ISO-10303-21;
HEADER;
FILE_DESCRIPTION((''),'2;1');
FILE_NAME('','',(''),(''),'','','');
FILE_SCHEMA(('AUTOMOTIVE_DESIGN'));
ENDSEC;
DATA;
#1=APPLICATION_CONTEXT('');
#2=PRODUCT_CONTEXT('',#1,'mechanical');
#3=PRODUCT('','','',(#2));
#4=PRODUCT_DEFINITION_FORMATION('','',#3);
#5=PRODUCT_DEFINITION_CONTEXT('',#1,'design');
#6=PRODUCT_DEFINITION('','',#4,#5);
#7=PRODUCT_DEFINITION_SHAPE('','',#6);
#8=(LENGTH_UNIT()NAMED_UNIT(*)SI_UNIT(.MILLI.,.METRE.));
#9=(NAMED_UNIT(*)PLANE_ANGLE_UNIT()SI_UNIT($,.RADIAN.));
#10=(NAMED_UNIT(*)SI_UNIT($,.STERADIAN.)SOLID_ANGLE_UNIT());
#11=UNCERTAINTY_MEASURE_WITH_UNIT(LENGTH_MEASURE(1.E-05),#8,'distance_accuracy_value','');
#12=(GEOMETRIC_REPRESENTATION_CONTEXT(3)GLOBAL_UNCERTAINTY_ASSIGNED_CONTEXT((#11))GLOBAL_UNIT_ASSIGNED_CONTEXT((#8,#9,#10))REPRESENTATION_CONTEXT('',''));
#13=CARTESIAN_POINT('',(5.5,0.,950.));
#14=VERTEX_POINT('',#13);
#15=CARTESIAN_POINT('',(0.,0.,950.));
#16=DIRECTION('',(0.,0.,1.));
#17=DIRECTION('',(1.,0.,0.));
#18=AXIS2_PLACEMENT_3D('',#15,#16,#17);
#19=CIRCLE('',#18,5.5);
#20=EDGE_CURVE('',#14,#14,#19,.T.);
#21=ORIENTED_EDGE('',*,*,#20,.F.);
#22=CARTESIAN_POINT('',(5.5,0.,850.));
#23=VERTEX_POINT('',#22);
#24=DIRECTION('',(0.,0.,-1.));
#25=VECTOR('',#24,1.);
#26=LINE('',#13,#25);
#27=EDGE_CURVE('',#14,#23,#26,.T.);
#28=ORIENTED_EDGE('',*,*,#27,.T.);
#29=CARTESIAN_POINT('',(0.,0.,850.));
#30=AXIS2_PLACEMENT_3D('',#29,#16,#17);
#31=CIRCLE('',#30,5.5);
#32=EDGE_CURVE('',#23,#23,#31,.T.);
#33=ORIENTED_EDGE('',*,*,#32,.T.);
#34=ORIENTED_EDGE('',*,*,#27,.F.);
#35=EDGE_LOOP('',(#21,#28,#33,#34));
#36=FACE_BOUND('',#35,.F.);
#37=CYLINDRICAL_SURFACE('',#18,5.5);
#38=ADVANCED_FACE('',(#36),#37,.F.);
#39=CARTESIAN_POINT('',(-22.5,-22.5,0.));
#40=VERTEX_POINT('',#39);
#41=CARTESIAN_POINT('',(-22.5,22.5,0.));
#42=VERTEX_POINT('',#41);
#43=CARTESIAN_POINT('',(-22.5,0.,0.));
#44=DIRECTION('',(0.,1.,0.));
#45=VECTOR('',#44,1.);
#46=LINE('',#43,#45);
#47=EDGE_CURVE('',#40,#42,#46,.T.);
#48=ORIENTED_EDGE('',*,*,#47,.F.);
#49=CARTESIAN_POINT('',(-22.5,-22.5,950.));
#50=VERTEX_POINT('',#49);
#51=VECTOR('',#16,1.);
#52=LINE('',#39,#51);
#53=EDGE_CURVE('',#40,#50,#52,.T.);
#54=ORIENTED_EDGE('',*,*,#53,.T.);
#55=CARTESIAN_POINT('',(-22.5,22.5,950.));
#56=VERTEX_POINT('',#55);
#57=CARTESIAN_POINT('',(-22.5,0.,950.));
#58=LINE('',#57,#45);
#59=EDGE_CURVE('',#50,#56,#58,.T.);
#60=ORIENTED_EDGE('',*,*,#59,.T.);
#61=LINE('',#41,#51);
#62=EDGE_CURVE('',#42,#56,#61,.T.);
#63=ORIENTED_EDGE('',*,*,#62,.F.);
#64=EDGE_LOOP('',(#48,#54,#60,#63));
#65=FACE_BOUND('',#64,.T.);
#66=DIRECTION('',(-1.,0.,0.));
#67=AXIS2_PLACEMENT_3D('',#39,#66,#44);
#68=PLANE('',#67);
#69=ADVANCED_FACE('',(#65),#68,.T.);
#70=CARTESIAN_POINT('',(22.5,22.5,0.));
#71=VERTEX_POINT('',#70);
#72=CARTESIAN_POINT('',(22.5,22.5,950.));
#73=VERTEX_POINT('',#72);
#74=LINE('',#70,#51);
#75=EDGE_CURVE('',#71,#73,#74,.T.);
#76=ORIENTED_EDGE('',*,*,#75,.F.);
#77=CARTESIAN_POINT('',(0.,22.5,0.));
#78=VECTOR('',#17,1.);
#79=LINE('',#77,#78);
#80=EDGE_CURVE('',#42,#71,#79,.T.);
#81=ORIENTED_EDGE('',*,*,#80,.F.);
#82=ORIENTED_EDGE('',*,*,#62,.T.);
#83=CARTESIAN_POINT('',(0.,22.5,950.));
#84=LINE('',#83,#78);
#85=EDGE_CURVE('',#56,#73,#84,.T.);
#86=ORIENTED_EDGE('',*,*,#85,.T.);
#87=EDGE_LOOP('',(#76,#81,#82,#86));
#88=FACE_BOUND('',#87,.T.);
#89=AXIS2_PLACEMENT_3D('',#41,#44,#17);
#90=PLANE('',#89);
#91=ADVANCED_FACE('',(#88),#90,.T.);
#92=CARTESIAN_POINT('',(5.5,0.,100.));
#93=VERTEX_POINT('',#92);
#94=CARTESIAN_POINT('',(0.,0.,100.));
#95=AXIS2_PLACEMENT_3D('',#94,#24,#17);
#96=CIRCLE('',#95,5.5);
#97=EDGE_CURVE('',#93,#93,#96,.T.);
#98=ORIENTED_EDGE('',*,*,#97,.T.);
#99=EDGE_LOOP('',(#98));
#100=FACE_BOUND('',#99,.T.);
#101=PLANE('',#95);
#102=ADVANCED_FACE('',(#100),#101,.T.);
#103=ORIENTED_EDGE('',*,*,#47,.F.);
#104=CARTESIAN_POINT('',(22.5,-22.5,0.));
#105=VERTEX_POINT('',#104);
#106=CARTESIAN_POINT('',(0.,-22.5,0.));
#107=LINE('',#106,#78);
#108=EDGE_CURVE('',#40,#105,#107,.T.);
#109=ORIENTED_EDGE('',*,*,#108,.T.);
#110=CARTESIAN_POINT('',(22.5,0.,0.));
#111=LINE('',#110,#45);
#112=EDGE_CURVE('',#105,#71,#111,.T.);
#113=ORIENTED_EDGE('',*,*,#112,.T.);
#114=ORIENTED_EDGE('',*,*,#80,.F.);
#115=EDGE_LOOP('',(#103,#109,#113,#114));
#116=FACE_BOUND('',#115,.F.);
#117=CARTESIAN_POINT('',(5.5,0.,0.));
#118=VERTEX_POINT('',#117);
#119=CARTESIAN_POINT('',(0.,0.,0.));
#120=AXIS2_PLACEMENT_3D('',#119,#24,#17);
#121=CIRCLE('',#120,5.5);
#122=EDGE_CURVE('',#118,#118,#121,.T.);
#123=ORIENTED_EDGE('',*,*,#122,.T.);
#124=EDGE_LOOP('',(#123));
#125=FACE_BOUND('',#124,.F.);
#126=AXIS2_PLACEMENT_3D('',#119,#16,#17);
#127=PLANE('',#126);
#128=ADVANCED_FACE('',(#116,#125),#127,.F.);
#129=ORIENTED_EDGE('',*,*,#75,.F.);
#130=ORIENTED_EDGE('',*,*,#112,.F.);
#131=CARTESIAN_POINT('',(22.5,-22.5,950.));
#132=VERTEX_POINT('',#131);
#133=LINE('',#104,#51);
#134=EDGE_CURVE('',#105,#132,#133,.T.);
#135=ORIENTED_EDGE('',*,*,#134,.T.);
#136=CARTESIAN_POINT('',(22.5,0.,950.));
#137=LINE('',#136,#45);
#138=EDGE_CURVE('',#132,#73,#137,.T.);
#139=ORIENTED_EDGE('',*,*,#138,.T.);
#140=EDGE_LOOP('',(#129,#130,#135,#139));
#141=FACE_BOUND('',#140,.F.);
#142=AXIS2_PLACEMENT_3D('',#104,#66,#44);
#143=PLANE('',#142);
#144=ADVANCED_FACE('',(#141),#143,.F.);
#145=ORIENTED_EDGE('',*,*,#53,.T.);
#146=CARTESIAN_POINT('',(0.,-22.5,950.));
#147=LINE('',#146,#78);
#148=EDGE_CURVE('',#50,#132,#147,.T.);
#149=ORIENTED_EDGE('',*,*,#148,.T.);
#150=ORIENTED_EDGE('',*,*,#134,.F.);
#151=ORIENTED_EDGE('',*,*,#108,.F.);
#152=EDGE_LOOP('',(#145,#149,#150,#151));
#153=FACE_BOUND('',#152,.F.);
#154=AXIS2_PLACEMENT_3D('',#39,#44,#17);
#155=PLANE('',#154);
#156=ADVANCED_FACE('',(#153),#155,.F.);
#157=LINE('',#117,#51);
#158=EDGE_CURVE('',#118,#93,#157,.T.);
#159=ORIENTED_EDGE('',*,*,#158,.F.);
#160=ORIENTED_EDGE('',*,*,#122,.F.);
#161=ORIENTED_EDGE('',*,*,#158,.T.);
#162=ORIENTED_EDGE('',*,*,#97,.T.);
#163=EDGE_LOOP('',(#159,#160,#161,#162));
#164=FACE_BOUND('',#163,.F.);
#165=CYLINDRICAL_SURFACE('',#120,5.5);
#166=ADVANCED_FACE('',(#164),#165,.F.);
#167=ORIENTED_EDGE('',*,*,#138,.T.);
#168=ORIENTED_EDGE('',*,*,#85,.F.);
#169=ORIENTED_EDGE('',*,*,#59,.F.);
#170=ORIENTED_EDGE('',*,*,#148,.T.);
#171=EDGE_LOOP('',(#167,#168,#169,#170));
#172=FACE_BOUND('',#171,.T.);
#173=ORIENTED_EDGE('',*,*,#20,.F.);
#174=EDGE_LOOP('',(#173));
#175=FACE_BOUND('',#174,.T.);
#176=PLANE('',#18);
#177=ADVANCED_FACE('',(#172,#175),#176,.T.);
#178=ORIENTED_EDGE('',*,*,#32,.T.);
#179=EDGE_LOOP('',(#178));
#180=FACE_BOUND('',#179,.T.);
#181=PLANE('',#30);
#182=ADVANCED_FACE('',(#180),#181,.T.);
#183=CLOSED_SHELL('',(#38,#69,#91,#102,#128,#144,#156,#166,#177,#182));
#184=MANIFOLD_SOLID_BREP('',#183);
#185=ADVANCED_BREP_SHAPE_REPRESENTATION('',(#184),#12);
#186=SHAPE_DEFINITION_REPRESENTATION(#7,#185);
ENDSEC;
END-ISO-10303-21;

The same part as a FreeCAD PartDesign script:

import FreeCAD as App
import Part
import Sketcher

V = App.Vector
Q = App.Units.Quantity

doc = App.newDocument("Part")
body = doc.addObject("PartDesign::Body", "Body")

sketch1 = body.newObject("Sketcher::SketchObject", "Sketch")
sketch1.AttachmentSupport = (doc.getObject("XY_Plane"), [""])
sketch1.MapMode = "FlatFace"
sketch1.addGeometry(Part.LineSegment(V(-22.5, 22.5, 0), V(-22.5, -22.5, 0)), False)
sketch1.addGeometry(Part.LineSegment(V(-22.5, -22.5, 0), V(22.5, -22.5, 0)), False)
sketch1.addGeometry(Part.LineSegment(V(22.5, -22.5, 0), V(22.5, 22.5, 0)), False)
sketch1.addGeometry(Part.LineSegment(V(22.5, 22.5, 0), V(-22.5, 22.5, 0)), False)
sketch1.addConstraint(Sketcher.Constraint("Coincident", 0, 2, 1, 1))
sketch1.addConstraint(Sketcher.Constraint("Coincident", 1, 2, 2, 1))
sketch1.addConstraint(Sketcher.Constraint("Coincident", 2, 2, 3, 1))
sketch1.addConstraint(Sketcher.Constraint("Coincident", 3, 2, 0, 1))
sketch1.addConstraint(Sketcher.Constraint("Vertical", 0))
sketch1.addConstraint(Sketcher.Constraint("Horizontal", 1))
sketch1.addConstraint(Sketcher.Constraint("Vertical", 2))
sketch1.addConstraint(Sketcher.Constraint("Horizontal", 3))
sketch1.addConstraint(Sketcher.Constraint("Symmetric", 0, 2, 2, 2, -1, 1))
sketch1.addConstraint(Sketcher.Constraint("Equal", 3, 0))
sketch1.addConstraint(Sketcher.Constraint("DistanceX", 1, 1, 1, 2, Q("45 mm")))
pad1 = body.newObject("PartDesign::Pad", "Pad")
pad1.Profile = sketch1
pad1.Length = 950

sketch2 = body.newObject("Sketcher::SketchObject", "Sketch001")
sketch2.AttachmentSupport = (doc.getObject("XY_Plane"), [""])
sketch2.MapMode = "FlatFace"
sketch2.AttachmentOffset = App.Placement(V(0, 0, 950), App.Rotation())
sketch2.addGeometry(Part.Circle(V(0, 0, 0), V(0, 0, 1), 5.5), False)
sketch2.addConstraint(Sketcher.Constraint("Coincident", 0, 3, -1, 1))
sketch2.addConstraint(Sketcher.Constraint("Diameter", 0, Q("11 mm")))
pocket1 = body.newObject("PartDesign::Pocket", "Pocket")
pocket1.Profile = sketch2
pocket1.Length = 100

sketch3 = body.newObject("Sketcher::SketchObject", "Sketch002")
sketch3.AttachmentSupport = (doc.getObject("XY_Plane"), [""])
sketch3.MapMode = "FlatFace"
sketch3.addGeometry(Part.Circle(V(0, 0, 0), V(0, 0, 1), 5.5), False)
sketch3.addConstraint(Sketcher.Constraint("Coincident", 0, 3, -1, 1))
sketch3.addConstraint(Sketcher.Constraint("Diameter", 0, Q("11 mm")))
pocket2 = body.newObject("PartDesign::Pocket", "Pocket001")
pocket2.Profile = sketch3
pocket2.Length = 100
pocket2.Reversed = True

doc.recompute()
